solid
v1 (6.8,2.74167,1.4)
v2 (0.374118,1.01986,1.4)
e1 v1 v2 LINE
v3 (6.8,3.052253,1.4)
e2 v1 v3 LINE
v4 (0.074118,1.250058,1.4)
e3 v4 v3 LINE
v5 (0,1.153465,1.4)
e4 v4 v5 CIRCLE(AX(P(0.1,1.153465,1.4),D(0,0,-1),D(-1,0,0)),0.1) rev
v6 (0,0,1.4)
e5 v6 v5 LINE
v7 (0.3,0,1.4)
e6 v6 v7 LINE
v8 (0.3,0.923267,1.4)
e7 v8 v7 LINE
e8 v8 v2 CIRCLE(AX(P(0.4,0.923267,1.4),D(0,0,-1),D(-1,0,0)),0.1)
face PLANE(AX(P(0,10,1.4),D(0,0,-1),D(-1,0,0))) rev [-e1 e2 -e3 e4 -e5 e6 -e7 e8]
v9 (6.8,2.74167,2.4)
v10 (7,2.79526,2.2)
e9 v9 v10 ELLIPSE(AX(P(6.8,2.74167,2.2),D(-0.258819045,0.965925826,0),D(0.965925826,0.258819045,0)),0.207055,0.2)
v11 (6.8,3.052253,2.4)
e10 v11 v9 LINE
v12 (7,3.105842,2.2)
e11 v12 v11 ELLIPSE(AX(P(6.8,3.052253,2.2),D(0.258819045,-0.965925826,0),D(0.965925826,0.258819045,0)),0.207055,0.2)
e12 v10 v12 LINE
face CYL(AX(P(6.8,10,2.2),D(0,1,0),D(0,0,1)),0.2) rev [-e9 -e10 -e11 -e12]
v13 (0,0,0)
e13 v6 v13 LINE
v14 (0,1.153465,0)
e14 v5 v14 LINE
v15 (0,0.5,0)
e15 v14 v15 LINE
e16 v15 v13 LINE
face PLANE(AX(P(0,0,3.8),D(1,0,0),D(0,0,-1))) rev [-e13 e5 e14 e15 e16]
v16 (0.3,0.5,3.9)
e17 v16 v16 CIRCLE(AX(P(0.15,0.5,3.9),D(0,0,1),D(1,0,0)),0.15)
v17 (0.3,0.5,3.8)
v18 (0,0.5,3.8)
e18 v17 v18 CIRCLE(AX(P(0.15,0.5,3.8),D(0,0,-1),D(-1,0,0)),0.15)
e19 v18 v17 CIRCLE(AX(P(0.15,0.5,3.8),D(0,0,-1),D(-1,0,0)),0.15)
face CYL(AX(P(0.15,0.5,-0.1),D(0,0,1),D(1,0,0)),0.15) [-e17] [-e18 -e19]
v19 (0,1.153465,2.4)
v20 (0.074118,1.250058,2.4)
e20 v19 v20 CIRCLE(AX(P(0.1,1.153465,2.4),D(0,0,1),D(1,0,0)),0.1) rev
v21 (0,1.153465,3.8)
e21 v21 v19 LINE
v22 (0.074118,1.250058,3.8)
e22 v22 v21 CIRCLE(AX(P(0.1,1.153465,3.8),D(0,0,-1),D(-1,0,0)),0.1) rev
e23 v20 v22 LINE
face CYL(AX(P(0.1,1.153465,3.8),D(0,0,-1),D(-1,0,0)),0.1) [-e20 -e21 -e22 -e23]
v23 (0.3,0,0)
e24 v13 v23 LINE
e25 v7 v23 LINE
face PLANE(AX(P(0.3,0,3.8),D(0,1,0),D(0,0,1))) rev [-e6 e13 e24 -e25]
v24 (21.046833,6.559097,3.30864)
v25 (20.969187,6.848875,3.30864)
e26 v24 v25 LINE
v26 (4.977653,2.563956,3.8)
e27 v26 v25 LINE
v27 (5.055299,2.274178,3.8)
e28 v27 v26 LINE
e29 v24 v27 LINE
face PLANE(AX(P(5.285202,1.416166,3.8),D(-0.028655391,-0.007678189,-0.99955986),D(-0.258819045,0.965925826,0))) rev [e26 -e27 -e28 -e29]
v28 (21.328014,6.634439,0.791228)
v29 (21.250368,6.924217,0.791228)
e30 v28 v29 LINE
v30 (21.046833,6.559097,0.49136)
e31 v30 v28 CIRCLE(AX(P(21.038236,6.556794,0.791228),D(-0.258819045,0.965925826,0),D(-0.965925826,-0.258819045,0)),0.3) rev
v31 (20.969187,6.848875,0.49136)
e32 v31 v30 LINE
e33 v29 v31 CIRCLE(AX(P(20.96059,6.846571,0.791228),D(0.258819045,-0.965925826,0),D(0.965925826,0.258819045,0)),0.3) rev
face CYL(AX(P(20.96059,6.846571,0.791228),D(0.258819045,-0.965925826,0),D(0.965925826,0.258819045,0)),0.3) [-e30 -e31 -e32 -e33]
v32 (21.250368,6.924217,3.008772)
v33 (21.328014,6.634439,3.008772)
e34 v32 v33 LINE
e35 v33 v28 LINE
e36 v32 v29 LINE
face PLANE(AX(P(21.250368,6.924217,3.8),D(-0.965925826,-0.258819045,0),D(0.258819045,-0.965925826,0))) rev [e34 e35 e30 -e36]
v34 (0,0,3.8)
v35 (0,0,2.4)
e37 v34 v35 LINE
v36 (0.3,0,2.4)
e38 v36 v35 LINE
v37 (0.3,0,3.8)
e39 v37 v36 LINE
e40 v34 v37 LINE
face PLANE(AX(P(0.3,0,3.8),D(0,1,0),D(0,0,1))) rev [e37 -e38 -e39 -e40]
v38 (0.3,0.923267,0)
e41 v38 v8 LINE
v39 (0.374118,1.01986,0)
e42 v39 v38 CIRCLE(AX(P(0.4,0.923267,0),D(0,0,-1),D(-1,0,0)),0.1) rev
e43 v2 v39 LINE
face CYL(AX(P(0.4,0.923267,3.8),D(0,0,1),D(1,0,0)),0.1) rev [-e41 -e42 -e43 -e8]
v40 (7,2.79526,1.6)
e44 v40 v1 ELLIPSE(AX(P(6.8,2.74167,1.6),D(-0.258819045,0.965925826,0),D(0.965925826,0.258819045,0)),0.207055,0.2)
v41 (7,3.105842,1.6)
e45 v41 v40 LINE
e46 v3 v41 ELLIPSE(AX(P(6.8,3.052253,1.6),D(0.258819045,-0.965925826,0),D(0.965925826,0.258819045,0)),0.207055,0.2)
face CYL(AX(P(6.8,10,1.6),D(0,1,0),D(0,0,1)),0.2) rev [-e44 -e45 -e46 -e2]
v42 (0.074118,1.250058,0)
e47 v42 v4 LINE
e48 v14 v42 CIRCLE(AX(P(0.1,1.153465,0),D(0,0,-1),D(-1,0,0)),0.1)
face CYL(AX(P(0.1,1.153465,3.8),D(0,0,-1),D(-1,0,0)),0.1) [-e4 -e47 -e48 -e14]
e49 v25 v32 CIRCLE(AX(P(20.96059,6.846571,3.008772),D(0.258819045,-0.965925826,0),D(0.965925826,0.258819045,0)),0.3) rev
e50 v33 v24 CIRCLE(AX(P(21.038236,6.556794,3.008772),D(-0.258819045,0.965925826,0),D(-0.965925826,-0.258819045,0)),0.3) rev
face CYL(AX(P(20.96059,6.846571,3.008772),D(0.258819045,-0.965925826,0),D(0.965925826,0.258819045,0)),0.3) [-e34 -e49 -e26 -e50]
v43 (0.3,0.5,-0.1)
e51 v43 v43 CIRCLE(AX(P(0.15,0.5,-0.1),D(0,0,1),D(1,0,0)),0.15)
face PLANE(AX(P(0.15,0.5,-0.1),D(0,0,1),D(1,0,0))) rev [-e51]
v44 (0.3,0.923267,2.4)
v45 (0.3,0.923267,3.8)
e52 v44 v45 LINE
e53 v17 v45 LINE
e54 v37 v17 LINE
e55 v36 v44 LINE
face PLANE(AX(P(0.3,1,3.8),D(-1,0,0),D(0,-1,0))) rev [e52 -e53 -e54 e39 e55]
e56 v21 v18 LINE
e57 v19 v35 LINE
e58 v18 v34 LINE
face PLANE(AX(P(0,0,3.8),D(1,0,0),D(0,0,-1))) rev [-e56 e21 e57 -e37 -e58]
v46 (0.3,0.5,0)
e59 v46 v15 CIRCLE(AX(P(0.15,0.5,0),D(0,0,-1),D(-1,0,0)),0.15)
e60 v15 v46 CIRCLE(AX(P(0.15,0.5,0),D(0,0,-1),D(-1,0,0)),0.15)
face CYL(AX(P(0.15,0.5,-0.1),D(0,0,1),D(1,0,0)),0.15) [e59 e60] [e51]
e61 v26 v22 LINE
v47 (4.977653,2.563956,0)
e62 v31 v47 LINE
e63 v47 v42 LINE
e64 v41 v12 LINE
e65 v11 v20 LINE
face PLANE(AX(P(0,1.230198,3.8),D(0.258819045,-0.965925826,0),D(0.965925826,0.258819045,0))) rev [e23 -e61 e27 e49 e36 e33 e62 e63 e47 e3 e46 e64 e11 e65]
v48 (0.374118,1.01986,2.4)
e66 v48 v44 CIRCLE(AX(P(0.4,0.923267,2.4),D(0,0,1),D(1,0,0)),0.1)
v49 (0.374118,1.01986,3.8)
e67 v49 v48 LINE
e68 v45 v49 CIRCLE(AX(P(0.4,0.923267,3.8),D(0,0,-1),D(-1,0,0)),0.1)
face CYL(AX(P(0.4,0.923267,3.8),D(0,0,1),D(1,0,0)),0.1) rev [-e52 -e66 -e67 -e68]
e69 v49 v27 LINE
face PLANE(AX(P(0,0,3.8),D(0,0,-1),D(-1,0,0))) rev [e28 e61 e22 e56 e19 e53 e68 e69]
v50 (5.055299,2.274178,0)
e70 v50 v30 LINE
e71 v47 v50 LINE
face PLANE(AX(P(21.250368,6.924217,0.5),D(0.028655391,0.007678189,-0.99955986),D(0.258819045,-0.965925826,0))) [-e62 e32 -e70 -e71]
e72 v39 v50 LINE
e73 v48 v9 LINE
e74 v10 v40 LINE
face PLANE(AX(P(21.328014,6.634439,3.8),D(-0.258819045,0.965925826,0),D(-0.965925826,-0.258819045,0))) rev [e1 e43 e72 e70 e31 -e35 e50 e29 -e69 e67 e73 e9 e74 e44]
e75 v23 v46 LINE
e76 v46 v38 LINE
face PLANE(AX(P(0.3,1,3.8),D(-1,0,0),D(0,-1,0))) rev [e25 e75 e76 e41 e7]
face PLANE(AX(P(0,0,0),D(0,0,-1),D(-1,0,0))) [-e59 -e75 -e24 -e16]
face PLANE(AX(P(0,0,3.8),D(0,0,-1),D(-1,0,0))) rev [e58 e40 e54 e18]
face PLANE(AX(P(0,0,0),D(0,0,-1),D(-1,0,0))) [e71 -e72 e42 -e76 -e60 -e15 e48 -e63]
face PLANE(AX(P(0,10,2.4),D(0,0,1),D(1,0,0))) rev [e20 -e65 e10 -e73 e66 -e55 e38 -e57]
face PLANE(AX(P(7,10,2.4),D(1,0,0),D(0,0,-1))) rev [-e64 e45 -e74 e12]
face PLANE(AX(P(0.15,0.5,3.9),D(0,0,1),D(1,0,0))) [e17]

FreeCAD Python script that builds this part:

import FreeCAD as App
import Part
import Sketcher
from FreeCAD import Vector
Q = App.Units.Quantity


def edges_at(feature, points):
    """Names of the edges that pass closest to the given points."""
    edges = feature.Shape.Edges
    near = lambda p: min(range(len(edges)), key=lambda i: edges[i].distToShape(Part.Vertex(*p))[0])
    return sorted({f"Edge{near(p) + 1}" for p in points})


def add_polygon(sketch, points):
    """Adds a closed chain of lines whose ends are joined by coincident constraints."""
    first, n = sketch.GeometryCount, len(points)
    for a, b in zip(points, points[1:] + points[:1]):
        sketch.addGeometry(Part.LineSegment(App.Vector(*a, 0), App.Vector(*b, 0)), False)
    for i in range(n):
        sketch.addConstraint(Sketcher.Constraint("Coincident", first + i, 2, first + (i + 1) % n, 1))

doc = App.newDocument("Part")
body = doc.addObject("PartDesign::Body", "Body")

# Sketch on XY plane
sketch1 = doc.addObject("Sketcher::SketchObject", "Sketch")
body.addObject(sketch1)
sketch1.AttachmentSupport = (doc.XY_Plane, [""])
sketch1.MapMode = "FlatFace"
add_polygon(sketch1, [(0, 1.23), (0, 0), (0.3, 0), (0.3, 1), (21.33, 6.63), (21.25, 6.92)])  # lines 0-5
sketch1.addConstraint([
    Sketcher.Constraint("Vertical", 0),
    Sketcher.Constraint("Horizontal", 1),
    Sketcher.Constraint("Vertical", 2),
    Sketcher.Constraint("Coincident", 0, 2, -1, 1),
    Sketcher.Constraint("Perpendicular", 3, 4),
    Sketcher.Constraint("Perpendicular", 4, 5),
    Sketcher.Constraint("DistanceY", 2, 1, 2, 2, 1.0),
    Sketcher.Constraint("Angle", 3, Q("15 deg")),
    Sketcher.Constraint("Distance", 5, 22.0),
    Sketcher.Constraint("DistanceX", 1, 1, 1, 2, 0.3),
    Sketcher.Constraint("Distance", 4, 0.3),
])
pad1 = doc.addObject("PartDesign::Pad", "Pad")
body.addObject(pad1)
pad1.Profile = sketch1
pad1.Length = 3.8
doc.recompute()

chamfer = doc.addObject("PartDesign::Chamfer", "Chamfer")
body.addObject(chamfer)
chamfer.Base = (pad1, edges_at(pad1, [(21.289, 6.779, 3.8), (21.289, 6.779, 0)]))
chamfer.ChamferType = "Two distances"
chamfer.Size = 0.5
chamfer.Size2 = 16.846754

# Sketch on XY plane
sketch2 = doc.addObject("Sketcher::SketchObject", "Sketch001")
body.addObject(sketch2)
sketch2.AttachmentSupport = (doc.XY_Plane, [""])
sketch2.MapMode = "FlatFace"
sketch2.AttachmentOffset = App.Placement(Vector(0, 0, 3.8), App.Rotation())
sketch2.addGeometry(Part.Circle(Vector(0.15, 0.5, 0), Vector(0, 0, 1), 0.15), False)
sketch2.addConstraint([
    Sketcher.Constraint("Diameter", 0, 0.3),
    Sketcher.Constraint("DistanceY", -1, 1, 0, 3, 0.5),
    Sketcher.Constraint("DistanceX", -1, 1, 0, 3, 0.15),
])
pad2 = doc.addObject("PartDesign::Pad", "Pad001")
body.addObject(pad2)
pad2.Profile = sketch2
pad2.Type = "TwoLengths"
pad2.Length = 0.1
pad2.Length2 = 3.9

# Sketch on XZ plane
sketch3 = doc.addObject("Sketcher::SketchObject", "Sketch002")
body.addObject(sketch3)
sketch3.AttachmentSupport = (doc.XZ_Plane, [""])
sketch3.MapMode = "FlatFace"
add_polygon(sketch3, [(0, 2.4), (0, 1.4), (7, 1.4), (7, 2.4)])  # lines 0-3
sketch3.addConstraint([
    Sketcher.Constraint("Vertical", 0),
    Sketcher.Constraint("Horizontal", 1),
    Sketcher.Constraint("Vertical", 2),
    Sketcher.Constraint("Horizontal", 3),
    Sketcher.Constraint("PointOnObject", 0, 2, -2),
    Sketcher.Constraint("DistanceX", 1, 1, 1, 2, 7.0),
    Sketcher.Constraint("DistanceY", 0, 2, 0, 1, 1.0),
    Sketcher.Constraint("DistanceY", -1, 1, 0, 2, 1.4),
])
pocket1 = doc.addObject("PartDesign::Pocket", "Pocket")
body.addObject(pocket1)
pocket1.Profile = sketch3
pocket1.Length = 10
doc.recompute()

fillet = doc.addObject("PartDesign::Fillet", "Fillet")
body.addObject(fillet)
fillet.Base = (pocket1, edges_at(pocket1, [
    (0, 1.23, 3.1),
    (0.3, 1, 3.1),
    (0, 1.23, 0.7),
    (0.3, 1, 0.7),
]))
fillet.Radius = 0.1
doc.recompute()

fillet2 = doc.addObject("PartDesign::Fillet", "Fillet001")
body.addObject(fillet2)
fillet2.Base = (fillet, edges_at(fillet, [(21.289, 6.779, 0.5), (21.289, 6.779, 3.3)]))
fillet2.Radius = 0.3
doc.recompute()

fillet3 = doc.addObject("PartDesign::Fillet", "Fillet002")
body.addObject(fillet3)
fillet3.Base = (fillet2, edges_at(fillet2, [(7, 2.951, 2.4), (7, 2.951, 1.4)]))
fillet3.Radius = 0.2

doc.recompute()
